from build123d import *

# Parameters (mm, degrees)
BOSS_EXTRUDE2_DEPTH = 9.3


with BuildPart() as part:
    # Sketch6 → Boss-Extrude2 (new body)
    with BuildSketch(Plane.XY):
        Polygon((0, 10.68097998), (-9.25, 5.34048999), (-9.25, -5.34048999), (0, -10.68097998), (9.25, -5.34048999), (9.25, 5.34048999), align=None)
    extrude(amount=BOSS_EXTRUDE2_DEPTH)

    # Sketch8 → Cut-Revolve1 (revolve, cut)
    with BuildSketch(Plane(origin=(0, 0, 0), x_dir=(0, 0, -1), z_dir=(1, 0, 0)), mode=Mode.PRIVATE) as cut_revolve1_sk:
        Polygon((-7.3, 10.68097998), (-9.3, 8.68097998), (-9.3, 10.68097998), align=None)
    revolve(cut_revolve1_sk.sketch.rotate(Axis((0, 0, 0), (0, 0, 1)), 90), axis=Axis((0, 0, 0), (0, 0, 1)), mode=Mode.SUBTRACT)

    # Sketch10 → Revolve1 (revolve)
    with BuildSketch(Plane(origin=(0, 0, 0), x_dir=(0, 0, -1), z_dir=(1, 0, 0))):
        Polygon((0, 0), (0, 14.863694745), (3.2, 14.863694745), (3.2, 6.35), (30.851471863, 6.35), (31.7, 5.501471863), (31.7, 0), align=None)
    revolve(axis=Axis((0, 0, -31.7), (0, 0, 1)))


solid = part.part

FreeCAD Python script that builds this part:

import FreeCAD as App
import Part
import Sketcher
from FreeCAD import Vector
Q = App.Units.Quantity

doc = App.newDocument("Part")
body = doc.addObject("PartDesign::Body", "Body")

# Sketch on XY plane
sketch1 = body.newObject("Sketcher::SketchObject", "Sketch")
sketch1.AttachmentSupport = (doc.getObject("XY_Plane"), [""])
sketch1.MapMode = "FlatFace"
sketch1.addGeometry(Part.LineSegment(Vector(0, 11, 0), Vector(-9, 5, 0)), False)
sketch1.addGeometry(Part.LineSegment(Vector(-9, 5, 0), Vector(-9, -5, 0)), False)
sketch1.addGeometry(Part.LineSegment(Vector(-9, -5, 0), Vector(0, -11, 0)), False)
sketch1.addGeometry(Part.LineSegment(Vector(0, -11, 0), Vector(9, -5, 0)), False)
sketch1.addGeometry(Part.LineSegment(Vector(9, -5, 0), Vector(9, 5, 0)), False)
sketch1.addGeometry(Part.LineSegment(Vector(9, 5, 0), Vector(0, 11, 0)), False)
sketch1.addConstraint(Sketcher.Constraint("Coincident", 0, 2, 1, 1))
sketch1.addConstraint(Sketcher.Constraint("Coincident", 1, 2, 2, 1))
sketch1.addConstraint(Sketcher.Constraint("Coincident", 2, 2, 3, 1))
sketch1.addConstraint(Sketcher.Constraint("Coincident", 3, 2, 4, 1))
sketch1.addConstraint(Sketcher.Constraint("Coincident", 4, 2, 5, 1))
sketch1.addConstraint(Sketcher.Constraint("Coincident", 5, 2, 0, 1))
sketch1.addConstraint(Sketcher.Constraint("Vertical", 1))
sketch1.addConstraint(Sketcher.Constraint("Vertical", 4))
sketch1.addConstraint(Sketcher.Constraint("Symmetric", 0, 2, 3, 2, -1, 1))
sketch1.addConstraint(Sketcher.Constraint("Symmetric", 2, 2, 5, 2, -1, 1))
sketch1.addConstraint(Sketcher.Constraint("PointOnObject", 2, 2, -2))
sketch1.addConstraint(Sketcher.Constraint("Parallel", 2, 5))
sketch1.addConstraint(Sketcher.Constraint("Horizontal", 1, 2, 3, 2))
sketch1.addConstraint(Sketcher.Constraint("Angle", 0, Q("-150 deg")))
sketch1.addConstraint(Sketcher.Constraint("DistanceX", 1, 2, 3, 2, Q("18.5 mm")))
sketch1.addConstraint(Sketcher.Constraint("DistanceY", 1, 2, 1, 1, Q("10.68098 mm")))
pad1 = body.newObject("PartDesign::Pad", "Pad")
pad1.Profile = sketch1
pad1.Length = 9.3

# Sketch on YZ plane
sketch2 = body.newObject("Sketcher::SketchObject", "Sketch001")
sketch2.AttachmentSupport = (doc.getObject("YZ_Plane"), [""])
sketch2.MapMode = "FlatFace"
sketch2.addGeometry(Part.LineSegment(Vector(8.7, 9.3, 0), Vector(10.7, 7.3, 0)), False)
sketch2.addGeometry(Part.LineSegment(Vector(10.7, 7.3, 0), Vector(10.7, 9.3, 0)), False)
sketch2.addGeometry(Part.LineSegment(Vector(10.7, 9.3, 0), Vector(8.7, 9.3, 0)), False)
sketch2.addConstraint(Sketcher.Constraint("Coincident", 0, 2, 1, 1))
sketch2.addConstraint(Sketcher.Constraint("Coincident", 1, 2, 2, 1))
sketch2.addConstraint(Sketcher.Constraint("Coincident", 2, 2, 0, 1))
sketch2.addConstraint(Sketcher.Constraint("Vertical", 1))
sketch2.addConstraint(Sketcher.Constraint("Horizontal", 2))
sketch2.addConstraint(Sketcher.Constraint("Equal", 2, 1))
sketch2.addConstraint(Sketcher.Constraint("DistanceX", 2, 2, 2, 1, Q("2 mm")))
sketch2.addConstraint(Sketcher.Constraint("DistanceY", -1, 1, 0, 2, Q("7.3 mm")))
sketch2.addConstraint(Sketcher.Constraint("DistanceX", -1, 1, 0, 2, Q("10.68098 mm")))
groove = body.newObject("PartDesign::Groove", "Groove")
groove.Profile = sketch2
groove.ReferenceAxis = (sketch2, ["V_Axis"])
groove.Angle = 360

# Sketch on YZ plane
sketch3 = body.newObject("Sketcher::SketchObject", "Sketch002")
sketch3.AttachmentSupport = (doc.getObject("YZ_Plane"), [""])
sketch3.MapMode = "FlatFace"
sketch3.addGeometry(Part.LineSegment(Vector(14.9, 0, 0), Vector(0, 0, 0)), False)
sketch3.addGeometry(Part.LineSegment(Vector(0, 0, 0), Vector(0, -31.7, 0)), False)
sketch3.addGeometry(Part.LineSegment(Vector(0, -31.7, 0), Vector(5.5, -31.7, 0)), False)
sketch3.addGeometry(Part.LineSegment(Vector(5.5, -31.7, 0), Vector(6.3, -30.9, 0)), False)
sketch3.addGeometry(Part.LineSegment(Vector(6.3, -30.9, 0), Vector(6.3, -3.2, 0)), False)
sketch3.addGeometry(Part.LineSegment(Vector(6.3, -3.2, 0), Vector(14.9, -3.2, 0)), False)
sketch3.addGeometry(Part.LineSegment(Vector(14.9, -3.2, 0), Vector(14.9, 0, 0)), False)
sketch3.addConstraint(Sketcher.Constraint("Coincident", 0, 2, 1, 1))
sketch3.addConstraint(Sketcher.Constraint("Coincident", 1, 2, 2, 1))
sketch3.addConstraint(Sketcher.Constraint("Coincident", 2, 2, 3, 1))
sketch3.addConstraint(Sketcher.Constraint("Coincident", 3, 2, 4, 1))
sketch3.addConstraint(Sketcher.Constraint("Coincident", 4, 2, 5, 1))
sketch3.addConstraint(Sketcher.Constraint("Coincident", 5, 2, 6, 1))
sketch3.addConstraint(Sketcher.Constraint("Coincident", 6, 2, 0, 1))
sketch3.addConstraint(Sketcher.Constraint("Horizontal", 0))
sketch3.addConstraint(Sketcher.Constraint("Vertical", 1))
sketch3.addConstraint(Sketcher.Constraint("Horizontal", 2))
sketch3.addConstraint(Sketcher.Constraint("Vertical", 4))
sketch3.addConstraint(Sketcher.Constraint("Horizontal", 5))
sketch3.addConstraint(Sketcher.Constraint("Vertical", 6))
sketch3.addConstraint(Sketcher.Constraint("Coincident", 0, 2, -1, 1))
sketch3.addConstraint(Sketcher.Constraint("Angle", 3, Q("45 deg")))
sketch3.addConstraint(Sketcher.Constraint("DistanceY", 1, 2, 1, 1, Q("31.7 mm")))
sketch3.addConstraint(Sketcher.Constraint("DistanceY", 6, 1, 6, 2, Q("3.2 mm")))
sketch3.addConstraint(Sketcher.Constraint("Distance", 3, Q("1.2 mm")))
sketch3.addConstraint(Sketcher.Constraint("DistanceX", -1, 1, 3, 2, Q("6.35 mm")))
sketch3.addConstraint(Sketcher.Constraint("DistanceX", 0, 2, 0, 1, Q("14.863695 mm")))
revolution = body.newObject("PartDesign::Revolution", "Revolution")
revolution.Profile = sketch3
revolution.ReferenceAxis = (sketch3, ["V_Axis"])
revolution.Angle = 360

doc.recompute()
